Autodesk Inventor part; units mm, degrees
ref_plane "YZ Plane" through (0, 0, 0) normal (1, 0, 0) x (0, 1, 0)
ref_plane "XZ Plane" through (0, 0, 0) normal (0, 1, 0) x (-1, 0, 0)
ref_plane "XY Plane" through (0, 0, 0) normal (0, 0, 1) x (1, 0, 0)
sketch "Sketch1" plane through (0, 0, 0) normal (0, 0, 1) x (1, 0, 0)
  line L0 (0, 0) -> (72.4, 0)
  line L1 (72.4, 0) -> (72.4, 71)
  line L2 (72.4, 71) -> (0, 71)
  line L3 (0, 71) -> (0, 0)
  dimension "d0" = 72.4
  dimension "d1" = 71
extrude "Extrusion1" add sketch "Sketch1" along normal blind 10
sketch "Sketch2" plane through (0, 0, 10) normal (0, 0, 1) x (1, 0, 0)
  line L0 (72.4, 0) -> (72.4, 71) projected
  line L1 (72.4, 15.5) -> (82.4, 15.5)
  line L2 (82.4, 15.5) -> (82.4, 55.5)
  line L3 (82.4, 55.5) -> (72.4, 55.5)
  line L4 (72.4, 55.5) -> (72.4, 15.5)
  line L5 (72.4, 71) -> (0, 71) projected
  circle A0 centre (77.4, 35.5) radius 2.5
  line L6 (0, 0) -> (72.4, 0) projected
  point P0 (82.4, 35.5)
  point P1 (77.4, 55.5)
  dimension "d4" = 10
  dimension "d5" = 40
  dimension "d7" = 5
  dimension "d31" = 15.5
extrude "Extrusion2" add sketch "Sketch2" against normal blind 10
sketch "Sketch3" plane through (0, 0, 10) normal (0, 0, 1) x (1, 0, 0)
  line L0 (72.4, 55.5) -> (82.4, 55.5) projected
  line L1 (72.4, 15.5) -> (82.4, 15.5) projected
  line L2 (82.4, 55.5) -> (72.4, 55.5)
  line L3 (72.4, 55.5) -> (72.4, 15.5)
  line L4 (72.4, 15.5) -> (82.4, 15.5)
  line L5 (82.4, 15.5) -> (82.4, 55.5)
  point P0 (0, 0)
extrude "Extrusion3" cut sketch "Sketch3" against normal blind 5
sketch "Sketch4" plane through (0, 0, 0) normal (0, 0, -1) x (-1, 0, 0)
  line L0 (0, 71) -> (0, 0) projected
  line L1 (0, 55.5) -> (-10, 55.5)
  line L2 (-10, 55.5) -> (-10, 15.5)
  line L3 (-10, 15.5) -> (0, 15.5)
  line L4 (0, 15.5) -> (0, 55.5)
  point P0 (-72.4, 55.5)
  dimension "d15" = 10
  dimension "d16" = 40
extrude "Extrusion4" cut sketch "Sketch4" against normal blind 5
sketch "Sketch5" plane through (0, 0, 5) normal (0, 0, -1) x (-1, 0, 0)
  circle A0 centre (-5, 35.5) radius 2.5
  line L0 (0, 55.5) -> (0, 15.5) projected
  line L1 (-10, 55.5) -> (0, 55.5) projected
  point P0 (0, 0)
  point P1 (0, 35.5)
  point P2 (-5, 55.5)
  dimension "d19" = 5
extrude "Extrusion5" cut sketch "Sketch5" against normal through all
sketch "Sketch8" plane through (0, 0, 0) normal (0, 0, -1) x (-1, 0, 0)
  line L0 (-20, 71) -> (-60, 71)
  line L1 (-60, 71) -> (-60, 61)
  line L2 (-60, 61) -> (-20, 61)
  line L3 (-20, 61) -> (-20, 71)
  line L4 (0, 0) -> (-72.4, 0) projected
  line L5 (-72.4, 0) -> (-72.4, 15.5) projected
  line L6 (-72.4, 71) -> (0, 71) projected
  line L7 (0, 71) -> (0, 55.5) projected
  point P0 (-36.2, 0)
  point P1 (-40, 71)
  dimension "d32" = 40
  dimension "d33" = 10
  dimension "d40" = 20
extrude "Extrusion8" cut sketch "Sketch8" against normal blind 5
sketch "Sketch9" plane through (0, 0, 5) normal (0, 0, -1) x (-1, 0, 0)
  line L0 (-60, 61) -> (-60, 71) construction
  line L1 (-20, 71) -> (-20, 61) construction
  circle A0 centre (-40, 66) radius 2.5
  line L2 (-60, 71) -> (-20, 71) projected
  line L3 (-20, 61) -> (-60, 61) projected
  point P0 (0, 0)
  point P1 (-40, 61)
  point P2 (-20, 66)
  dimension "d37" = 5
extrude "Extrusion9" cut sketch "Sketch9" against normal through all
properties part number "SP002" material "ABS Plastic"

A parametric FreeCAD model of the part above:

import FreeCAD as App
import Part
import Sketcher

doc = App.newDocument("Part")
body = doc.addObject("PartDesign::Body", "Body")

# Sketch on XY plane
sketch1 = doc.addObject("Sketcher::SketchObject", "Sketch")
body.addObject(sketch1)
sketch1.AttachmentSupport = (doc.XY_Plane, [""])
sketch1.MapMode = "FlatFace"
sketch1.addGeometry(Part.LineSegment(App.Vector(0, 71, 0), App.Vector(0, 0, 0)), False)
sketch1.addGeometry(Part.LineSegment(App.Vector(0, 0, 0), App.Vector(72, 0, 0)), False)
sketch1.addGeometry(Part.LineSegment(App.Vector(72, 0, 0), App.Vector(72, 71, 0)), False)
sketch1.addGeometry(Part.LineSegment(App.Vector(72, 71, 0), App.Vector(0, 71, 0)), False)
sketch1.addConstraint(Sketcher.Constraint("Coincident", 0, 2, 1, 1))
sketch1.addConstraint(Sketcher.Constraint("Coincident", 1, 2, 2, 1))
sketch1.addConstraint(Sketcher.Constraint("Coincident", 2, 2, 3, 1))
sketch1.addConstraint(Sketcher.Constraint("Coincident", 3, 2, 0, 1))
sketch1.addConstraint(Sketcher.Constraint("Vertical", 0))
sketch1.addConstraint(Sketcher.Constraint("Horizontal", 1))
sketch1.addConstraint(Sketcher.Constraint("Vertical", 2))
sketch1.addConstraint(Sketcher.Constraint("Horizontal", 3))
sketch1.addConstraint(Sketcher.Constraint("Coincident", 0, 2, -1, 1))
sketch1.addConstraint(Sketcher.Constraint("DistanceY", 0, 2, 0, 1, 71.0))
sketch1.addConstraint(Sketcher.Constraint("DistanceX", 1, 1, 1, 2, 72.4))
pad1 = doc.addObject("PartDesign::Pad", "Pad")
body.addObject(pad1)
pad1.Profile = sketch1
pad1.Length = 10

# Sketch on XY plane
sketch2 = doc.addObject("Sketcher::SketchObject", "Sketch001")
body.addObject(sketch2)
sketch2.AttachmentSupport = (doc.XY_Plane, [""])
sketch2.MapMode = "FlatFace"
sketch2.AttachmentOffset = App.Placement(App.Vector(0, 0, 10), App.Rotation())
sketch2.addGeometry(Part.LineSegment(App.Vector(72.4, 55.5, 0), App.Vector(72.4, 15.5, 0)), False)
sketch2.addGeometry(Part.LineSegment(App.Vector(72.4, 15.5, 0), App.Vector(82.4, 15.5, 0)), False)
sketch2.addGeometry(Part.LineSegment(App.Vector(82.4, 15.5, 0), App.Vector(82.4, 55.5, 0)), False)
sketch2.addGeometry(Part.LineSegment(App.Vector(82.4, 55.5, 0), App.Vector(72.4, 55.5, 0)), False)
sketch2.addGeometry(Part.Circle(App.Vector(77.4, 35.5, 0), App.Vector(0, 0, 1), 2.5), False)
sketch2.addConstraint(Sketcher.Constraint("Coincident", 0, 2, 1, 1))
sketch2.addConstraint(Sketcher.Constraint("Coincident", 1, 2, 2, 1))
sketch2.addConstraint(Sketcher.Constraint("Coincident", 2, 2, 3, 1))
sketch2.addConstraint(Sketcher.Constraint("Coincident", 3, 2, 0, 1))
sketch2.addConstraint(Sketcher.Constraint("Vertical", 0))
sketch2.addConstraint(Sketcher.Constraint("Horizontal", 1))
sketch2.addConstraint(Sketcher.Constraint("Vertical", 2))
sketch2.addConstraint(Sketcher.Constraint("Horizontal", 3))
sketch2.addConstraint(Sketcher.Constraint("Diameter", 4, 5.0))
sketch2.addConstraint(Sketcher.Constraint("DistanceX", 1, 1, 1, 2, 10.0))
sketch2.addConstraint(Sketcher.Constraint("DistanceY", 0, 2, 0, 1, 40.0))
sketch2.addConstraint(Sketcher.Constraint("DistanceX", 0, 2, 4, 3, 5.0))
sketch2.addConstraint(Sketcher.Constraint("DistanceY", -1, 1, 0, 2, 15.5))
sketch2.addConstraint(Sketcher.Constraint("DistanceY", 0, 2, 4, 3, 20.0))
sketch2.addConstraint(Sketcher.Constraint("DistanceX", -1, 1, 4, 3, 77.4))
pad2 = doc.addObject("PartDesign::Pad", "Pad001")
body.addObject(pad2)
pad2.Profile = sketch2
pad2.Length = 10
pad2.Reversed = True

# Sketch on XY plane
sketch3 = doc.addObject("Sketcher::SketchObject", "Sketch002")
body.addObject(sketch3)
sketch3.AttachmentSupport = (doc.XY_Plane, [""])
sketch3.MapMode = "FlatFace"
sketch3.AttachmentOffset = App.Placement(App.Vector(0, 0, 10), App.Rotation())
sketch3.addGeometry(Part.LineSegment(App.Vector(82, 56, 0), App.Vector(72, 56, 0)), False)
sketch3.addGeometry(Part.LineSegment(App.Vector(72, 56, 0), App.Vector(72, 16, 0)), False)
sketch3.addGeometry(Part.LineSegment(App.Vector(72, 16, 0), App.Vector(82, 16, 0)), False)
sketch3.addGeometry(Part.LineSegment(App.Vector(82, 16, 0), App.Vector(82, 56, 0)), False)
sketch3.addConstraint(Sketcher.Constraint("Coincident", 0, 2, 1, 1))
sketch3.addConstraint(Sketcher.Constraint("Coincident", 1, 2, 2, 1))
sketch3.addConstraint(Sketcher.Constraint("Coincident", 2, 2, 3, 1))
sketch3.addConstraint(Sketcher.Constraint("Coincident", 3, 2, 0, 1))
sketch3.addConstraint(Sketcher.Constraint("Horizontal", 0))
sketch3.addConstraint(Sketcher.Constraint("Vertical", 1))
sketch3.addConstraint(Sketcher.Constraint("Horizontal", 2))
sketch3.addConstraint(Sketcher.Constraint("Vertical", 3))
sketch3.addConstraint(Sketcher.Constraint("DistanceX", 0, 2, 0, 1, 10.0))
sketch3.addConstraint(Sketcher.Constraint("DistanceY", 1, 2, 1, 1, 40.0))
sketch3.addConstraint(Sketcher.Constraint("DistanceX", -1, 1, 0, 2, 72.4))
sketch3.addConstraint(Sketcher.Constraint("DistanceY", -1, 1, 0, 2, 55.5))
pocket1 = doc.addObject("PartDesign::Pocket", "Pocket")
body.addObject(pocket1)
pocket1.Profile = sketch3
pocket1.Length = 5

# Sketch on XY plane
sketch4 = doc.addObject("Sketcher::SketchObject", "Sketch003")
body.addObject(sketch4)
sketch4.AttachmentSupport = (doc.XY_Plane, [""])
sketch4.MapMode = "FlatFace"
sketch4.addGeometry(Part.LineSegment(App.Vector(0, 16, 0), App.Vector(0, 56, 0)), False)
sketch4.addGeometry(Part.LineSegment(App.Vector(0, 56, 0), App.Vector(10, 56, 0)), False)
sketch4.addGeometry(Part.LineSegment(App.Vector(10, 56, 0), App.Vector(10, 16, 0)), False)
sketch4.addGeometry(Part.LineSegment(App.Vector(10, 16, 0), App.Vector(0, 16, 0)), False)
sketch4.addConstraint(Sketcher.Constraint("Coincident", 0, 2, 1, 1))
sketch4.addConstraint(Sketcher.Constraint("Coincident", 1, 2, 2, 1))
sketch4.addConstraint(Sketcher.Constraint("Coincident", 2, 2, 3, 1))
sketch4.addConstraint(Sketcher.Constraint("Coincident", 3, 2, 0, 1))
sketch4.addConstraint(Sketcher.Constraint("Vertical", 0))
sketch4.addConstraint(Sketcher.Constraint("Horizontal", 1))
sketch4.addConstraint(Sketcher.Constraint("Vertical", 2))
sketch4.addConstraint(Sketcher.Constraint("Horizontal", 3))
sketch4.addConstraint(Sketcher.Constraint("PointOnObject", 0, 2, -2))
sketch4.addConstraint(Sketcher.Constraint("DistanceX", 1, 1, 1, 2, 10.0))
sketch4.addConstraint(Sketcher.Constraint("DistanceY", 0, 1, 0, 2, 40.0))
sketch4.addConstraint(Sketcher.Constraint("DistanceY", -1, 1, 0, 2, 55.5))
pocket2 = doc.addObject("PartDesign::Pocket", "Pocket001")
body.addObject(pocket2)
pocket2.Profile = sketch4
pocket2.Length = 5
pocket2.Reversed = True

# Sketch on XY plane
sketch5 = doc.addObject("Sketcher::SketchObject", "Sketch004")
body.addObject(sketch5)
sketch5.AttachmentSupport = (doc.XY_Plane, [""])
sketch5.MapMode = "FlatFace"
sketch5.AttachmentOffset = App.Placement(App.Vector(0, 0, 5), App.Rotation())
sketch5.addGeometry(Part.Circle(App.Vector(5, 35.5, 0), App.Vector(0, 0, 1), 2.5), False)
sketch5.addConstraint(Sketcher.Constraint("Diameter", 0, 5.0))
sketch5.addConstraint(Sketcher.Constraint("DistanceX", -1, 1, 0, 3, 5.0))
sketch5.addConstraint(Sketcher.Constraint("DistanceY", -1, 1, 0, 3, 35.5))
pocket3 = doc.addObject("PartDesign::Pocket", "Pocket002")
body.addObject(pocket3)
pocket3.Profile = sketch5
pocket3.Type = "ThroughAll"
pocket3.Reversed = True

# Sketch on XY plane
sketch6 = doc.addObject("Sketcher::SketchObject", "Sketch005")
body.addObject(sketch6)
sketch6.AttachmentSupport = (doc.XY_Plane, [""])
sketch6.MapMode = "FlatFace"
sketch6.addGeometry(Part.LineSegment(App.Vector(20, 61, 0), App.Vector(20, 71, 0)), False)
sketch6.addGeometry(Part.LineSegment(App.Vector(20, 71, 0), App.Vector(60, 71, 0)), False)
sketch6.addGeometry(Part.LineSegment(App.Vector(60, 71, 0), App.Vector(60, 61, 0)), False)
sketch6.addGeometry(Part.LineSegment(App.Vector(60, 61, 0), App.Vector(20, 61, 0)), False)
sketch6.addConstraint(Sketcher.Constraint("Coincident", 0, 2, 1, 1))
sketch6.addConstraint(Sketcher.Constraint("Coincident", 1, 2, 2, 1))
sketch6.addConstraint(Sketcher.Constraint("Coincident", 2, 2, 3, 1))
sketch6.addConstraint(Sketcher.Constraint("Coincident", 3, 2, 0, 1))
sketch6.addConstraint(Sketcher.Constraint("Vertical", 0))
sketch6.addConstraint(Sketcher.Constraint("Horizontal", 1))
sketch6.addConstraint(Sketcher.Constraint("Vertical", 2))
sketch6.addConstraint(Sketcher.Constraint("Horizontal", 3))
sketch6.addConstraint(Sketcher.Constraint("DistanceX", 1, 1, 1, 2, 40.0))
sketch6.addConstraint(Sketcher.Constraint("DistanceY", 0, 1, 0, 2, 10.0))
sketch6.addConstraint(Sketcher.Constraint("DistanceX", -1, 1, 0, 2, 20.0))
sketch6.addConstraint(Sketcher.Constraint("DistanceY", -1, 1, 0, 2, 71.0))
pocket4 = doc.addObject("PartDesign::Pocket", "Pocket003")
body.addObject(pocket4)
pocket4.Profile = sketch6
pocket4.Length = 5
pocket4.Reversed = True

# Sketch on XY plane
sketch7 = doc.addObject("Sketcher::SketchObject", "Sketch006")
body.addObject(sketch7)
sketch7.AttachmentSupport = (doc.XY_Plane, [""])
sketch7.MapMode = "FlatFace"
sketch7.AttachmentOffset = App.Placement(App.Vector(0, 0, 5), App.Rotation())
sketch7.addGeometry(Part.Circle(App.Vector(40, 66, 0), App.Vector(0, 0, 1), 2.5), False)
sketch7.addConstraint(Sketcher.Constraint("Diameter", 0, 5.0))
sketch7.addConstraint(Sketcher.Constraint("DistanceX", -1, 1, 0, 3, 40.0))
sketch7.addConstraint(Sketcher.Constraint("DistanceY", -1, 1, 0, 3, 66.0))
pocket5 = doc.addObject("PartDesign::Pocket", "Pocket004")
body.addObject(pocket5)
pocket5.Profile = sketch7
pocket5.Type = "ThroughAll"
pocket5.Reversed = True

doc.recompute()
